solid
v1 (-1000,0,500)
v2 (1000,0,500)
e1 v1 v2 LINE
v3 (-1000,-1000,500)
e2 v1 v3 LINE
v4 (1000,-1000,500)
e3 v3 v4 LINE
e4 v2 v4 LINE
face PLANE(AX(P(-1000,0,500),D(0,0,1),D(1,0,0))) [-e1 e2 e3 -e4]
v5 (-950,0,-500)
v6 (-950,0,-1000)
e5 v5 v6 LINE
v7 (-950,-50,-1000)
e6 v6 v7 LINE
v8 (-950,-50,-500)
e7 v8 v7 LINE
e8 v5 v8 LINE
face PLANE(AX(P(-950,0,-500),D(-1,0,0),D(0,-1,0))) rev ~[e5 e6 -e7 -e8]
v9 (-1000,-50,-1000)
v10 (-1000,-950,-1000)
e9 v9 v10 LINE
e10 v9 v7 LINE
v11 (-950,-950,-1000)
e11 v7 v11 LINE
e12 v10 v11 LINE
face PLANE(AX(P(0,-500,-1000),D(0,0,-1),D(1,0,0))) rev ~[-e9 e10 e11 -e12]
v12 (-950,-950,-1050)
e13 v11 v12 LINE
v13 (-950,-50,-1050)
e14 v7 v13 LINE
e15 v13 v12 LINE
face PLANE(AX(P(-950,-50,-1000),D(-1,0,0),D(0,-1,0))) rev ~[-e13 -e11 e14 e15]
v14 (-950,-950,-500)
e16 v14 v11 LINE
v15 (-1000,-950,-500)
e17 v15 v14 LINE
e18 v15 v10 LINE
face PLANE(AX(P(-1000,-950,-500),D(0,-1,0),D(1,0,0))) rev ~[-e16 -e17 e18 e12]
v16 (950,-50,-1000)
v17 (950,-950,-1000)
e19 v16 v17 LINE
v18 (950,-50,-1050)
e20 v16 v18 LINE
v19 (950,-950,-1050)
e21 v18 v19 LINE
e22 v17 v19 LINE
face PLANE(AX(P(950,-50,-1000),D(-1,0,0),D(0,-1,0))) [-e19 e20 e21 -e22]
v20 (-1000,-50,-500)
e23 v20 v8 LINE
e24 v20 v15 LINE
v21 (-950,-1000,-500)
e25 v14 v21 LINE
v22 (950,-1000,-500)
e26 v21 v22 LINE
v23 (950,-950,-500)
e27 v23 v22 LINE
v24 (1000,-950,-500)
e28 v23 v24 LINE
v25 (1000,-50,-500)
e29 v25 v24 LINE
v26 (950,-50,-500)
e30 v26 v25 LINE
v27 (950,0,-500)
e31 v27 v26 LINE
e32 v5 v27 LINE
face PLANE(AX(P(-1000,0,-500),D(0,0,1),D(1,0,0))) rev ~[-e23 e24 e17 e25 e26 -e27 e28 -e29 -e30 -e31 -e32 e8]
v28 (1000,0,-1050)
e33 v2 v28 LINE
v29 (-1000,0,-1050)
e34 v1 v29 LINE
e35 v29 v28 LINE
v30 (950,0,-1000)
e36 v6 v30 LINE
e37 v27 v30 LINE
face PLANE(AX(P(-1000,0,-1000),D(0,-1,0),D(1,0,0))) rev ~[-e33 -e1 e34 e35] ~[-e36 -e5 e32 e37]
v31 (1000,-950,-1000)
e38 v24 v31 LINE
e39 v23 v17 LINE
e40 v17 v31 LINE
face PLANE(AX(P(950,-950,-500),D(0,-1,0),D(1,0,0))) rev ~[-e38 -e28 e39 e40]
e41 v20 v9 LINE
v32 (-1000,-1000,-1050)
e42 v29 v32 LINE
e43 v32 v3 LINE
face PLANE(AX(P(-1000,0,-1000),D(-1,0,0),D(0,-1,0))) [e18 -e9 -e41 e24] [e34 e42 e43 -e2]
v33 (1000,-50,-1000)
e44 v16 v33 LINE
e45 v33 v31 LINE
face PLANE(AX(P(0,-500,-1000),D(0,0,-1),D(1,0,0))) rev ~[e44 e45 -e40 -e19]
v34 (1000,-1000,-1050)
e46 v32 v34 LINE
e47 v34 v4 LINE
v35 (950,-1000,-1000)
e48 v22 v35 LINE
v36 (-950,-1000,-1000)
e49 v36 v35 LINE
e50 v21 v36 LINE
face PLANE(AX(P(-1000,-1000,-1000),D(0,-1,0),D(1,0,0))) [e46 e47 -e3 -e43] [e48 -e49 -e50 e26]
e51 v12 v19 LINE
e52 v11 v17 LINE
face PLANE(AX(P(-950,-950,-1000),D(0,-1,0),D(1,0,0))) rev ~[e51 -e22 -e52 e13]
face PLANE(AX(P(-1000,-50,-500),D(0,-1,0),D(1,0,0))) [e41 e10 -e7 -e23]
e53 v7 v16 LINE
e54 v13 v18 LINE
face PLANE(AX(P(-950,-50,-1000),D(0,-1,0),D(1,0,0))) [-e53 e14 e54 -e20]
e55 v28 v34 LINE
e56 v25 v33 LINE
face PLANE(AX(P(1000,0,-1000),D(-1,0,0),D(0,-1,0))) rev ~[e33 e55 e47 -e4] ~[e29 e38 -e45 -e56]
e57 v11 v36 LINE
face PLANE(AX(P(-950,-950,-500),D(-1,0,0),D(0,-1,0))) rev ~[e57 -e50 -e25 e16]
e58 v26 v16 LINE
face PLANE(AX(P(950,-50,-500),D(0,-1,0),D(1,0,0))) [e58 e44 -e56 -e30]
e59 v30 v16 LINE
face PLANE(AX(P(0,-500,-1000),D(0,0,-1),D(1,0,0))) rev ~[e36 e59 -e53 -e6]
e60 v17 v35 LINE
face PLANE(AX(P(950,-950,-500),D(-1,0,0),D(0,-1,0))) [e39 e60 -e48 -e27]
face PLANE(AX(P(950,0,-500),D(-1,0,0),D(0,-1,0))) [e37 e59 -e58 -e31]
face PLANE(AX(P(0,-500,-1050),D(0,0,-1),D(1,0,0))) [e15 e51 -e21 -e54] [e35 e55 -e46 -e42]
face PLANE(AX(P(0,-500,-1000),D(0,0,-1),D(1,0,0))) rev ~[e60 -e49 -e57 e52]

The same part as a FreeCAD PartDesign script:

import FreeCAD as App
import Part
import Sketcher

V = App.Vector


def add_polygon(sketch, points):
    """Adds a closed chain of lines whose ends are joined by coincident constraints."""
    first, n = sketch.GeometryCount, len(points)
    for a, b in zip(points, points[1:] + points[:1]):
        sketch.addGeometry(Part.LineSegment(App.Vector(*a, 0), App.Vector(*b, 0)), False)
    for i in range(n):
        sketch.addConstraint(Sketcher.Constraint("Coincident", first + i, 2, first + (i + 1) % n, 1))

doc = App.newDocument("Part")
body = doc.addObject("PartDesign::Body", "Body")

# Sketch on XZ plane
sketch1 = doc.addObject("Sketcher::SketchObject", "Sketch")
body.addObject(sketch1)
sketch1.AttachmentSupport = (doc.XZ_Plane, [""])
sketch1.MapMode = "FlatFace"
add_polygon(sketch1, [(-1000, 500), (-1000, -500), (1000, -500), (1000, 500)])  # lines 0-3
sketch1.addConstraint([
    Sketcher.Constraint("Vertical", 0),
    Sketcher.Constraint("Horizontal", 1),
    Sketcher.Constraint("Vertical", 2),
    Sketcher.Constraint("Horizontal", 3),
    Sketcher.Constraint("Symmetric", 0, 2, 2, 2, -1, 1),
    Sketcher.Constraint("DistanceX", 1, 1, 1, 2, 2000.0),
    Sketcher.Constraint("DistanceY", 0, 2, 0, 1, 1000.0),
])
pad1 = doc.addObject("PartDesign::Pad", "Pad")
body.addObject(pad1)
pad1.Profile = sketch1
pad1.Length = 1000

# Sketch on XY plane
sketch2 = doc.addObject("Sketcher::SketchObject", "Sketch001")
body.addObject(sketch2)
sketch2.AttachmentSupport = (doc.XY_Plane, [""])
sketch2.MapMode = "FlatFace"
sketch2.AttachmentOffset = App.Placement(V(0, 0, -500), App.Rotation())
add_polygon(sketch2, [(950, -50), (950, 0), (1000, 0), (1000, -50)])  # lines 0-3
add_polygon(sketch2, [(950, -1000), (950, -950), (1000, -950), (1000, -1000)])  # lines 4-7
add_polygon(sketch2, [(-1000, -1000), (-1000, -950), (-950, -950), (-950, -1000)])  # lines 8-11
add_polygon(sketch2, [(-1000, -50), (-1000, 0), (-950, 0), (-950, -50)])  # lines 12-15
sketch2.addConstraint([
    Sketcher.Constraint("Vertical", 0),
    Sketcher.Constraint("Horizontal", 1),
    Sketcher.Constraint("Vertical", 2),
    Sketcher.Constraint("Horizontal", 3),
    Sketcher.Constraint("Vertical", 4),
    Sketcher.Constraint("Horizontal", 5),
    Sketcher.Constraint("Vertical", 6),
    Sketcher.Constraint("Horizontal", 7),
    Sketcher.Constraint("Vertical", 8),
    Sketcher.Constraint("Horizontal", 9),
    Sketcher.Constraint("Vertical", 10),
    Sketcher.Constraint("Horizontal", 11),
    Sketcher.Constraint("Vertical", 12),
    Sketcher.Constraint("Horizontal", 13),
    Sketcher.Constraint("Vertical", 14),
    Sketcher.Constraint("Horizontal", 15),
    Sketcher.Constraint("Symmetric", 1, 2, 12, 2, -1, 1),
    Sketcher.Constraint("Symmetric", 5, 2, 8, 2, -2),
    Sketcher.Constraint("Symmetric", 7, 2, 10, 2, -2),
    Sketcher.Constraint("Symmetric", 0, 2, 13, 2, -2),
    Sketcher.Constraint("Horizontal", 3, 2, 14, 2),
    Sketcher.Constraint("Vertical", 3, 2, 4, 2),
    Sketcher.Constraint("Vertical", 2, 2, 5, 2),
    Sketcher.Constraint("Equal", 15, 0),
    Sketcher.Constraint("Equal", 2, 4),
    Sketcher.Constraint("DistanceX", 1, 1, 1, 2, 50.0),
    Sketcher.Constraint("DistanceX", -1, 1, 0, 2, 950.0),
    Sketcher.Constraint("DistanceY", 4, 2, -1, 1, 950.0),
])
pad2 = doc.addObject("PartDesign::Pad", "Pad001")
body.addObject(pad2)
pad2.Profile = sketch2
pad2.Length = 500
pad2.Reversed = True

# Sketch on XY plane
sketch3 = doc.addObject("Sketcher::SketchObject", "Sketch002")
body.addObject(sketch3)
sketch3.AttachmentSupport = (doc.XY_Plane, [""])
sketch3.MapMode = "FlatFace"
sketch3.AttachmentOffset = App.Placement(V(0, 0, -1000), App.Rotation())
add_polygon(sketch3, [(-1000, -1000), (-1000, 0), (1000, 0), (1000, -1000)])  # lines 0-3
add_polygon(sketch3, [(950, -50), (-950, -50), (-950, -950), (950, -950)])  # lines 4-7
sketch3.addConstraint([
    Sketcher.Constraint("Vertical", 0),
    Sketcher.Constraint("Horizontal", 1),
    Sketcher.Constraint("Vertical", 2),
    Sketcher.Constraint("Horizontal", 3),
    Sketcher.Constraint("Horizontal", 4),
    Sketcher.Constraint("Vertical", 5),
    Sketcher.Constraint("Horizontal", 6),
    Sketcher.Constraint("Vertical", 7),
    Sketcher.Constraint("Symmetric", 0, 2, 1, 2, -1, 1),
    Sketcher.Constraint("DistanceX", 1, 1, 1, 2, 2000.0),
    Sketcher.Constraint("DistanceX", 4, 2, 4, 1, 1900.0),
    Sketcher.Constraint("DistanceY", 0, 1, 0, 2, 1000.0),
    Sketcher.Constraint("DistanceY", 5, 2, 5, 1, 900.0),
    Sketcher.Constraint("DistanceX", 4, 2, -1, 1, 950.0),
    Sketcher.Constraint("DistanceY", 4, 2, -1, 1, 50.0),
])
pad3 = doc.addObject("PartDesign::Pad", "Pad002")
body.addObject(pad3)
pad3.Profile = sketch3
pad3.Length = 50
pad3.Reversed = True

doc.recompute()
